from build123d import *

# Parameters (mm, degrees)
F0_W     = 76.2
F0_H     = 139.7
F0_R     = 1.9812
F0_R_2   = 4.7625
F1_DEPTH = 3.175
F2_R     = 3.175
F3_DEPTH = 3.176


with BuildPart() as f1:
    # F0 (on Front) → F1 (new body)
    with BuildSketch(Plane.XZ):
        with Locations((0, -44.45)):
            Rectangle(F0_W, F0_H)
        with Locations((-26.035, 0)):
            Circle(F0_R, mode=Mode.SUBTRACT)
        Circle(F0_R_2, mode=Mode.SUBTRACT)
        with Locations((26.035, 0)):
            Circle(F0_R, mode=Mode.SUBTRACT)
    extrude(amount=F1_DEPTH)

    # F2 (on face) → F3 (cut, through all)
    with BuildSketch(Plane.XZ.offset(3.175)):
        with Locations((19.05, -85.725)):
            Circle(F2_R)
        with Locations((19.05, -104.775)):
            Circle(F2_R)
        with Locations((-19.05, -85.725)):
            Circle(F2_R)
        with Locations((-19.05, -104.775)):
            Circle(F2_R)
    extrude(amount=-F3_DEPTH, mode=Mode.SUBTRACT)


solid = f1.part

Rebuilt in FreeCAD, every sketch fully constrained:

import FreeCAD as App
import Part
import Sketcher
Q = App.Units.Quantity


def add_polygon(sketch, points):
    """Adds a closed chain of lines whose ends are joined by coincident constraints."""
    first, n = sketch.GeometryCount, len(points)
    for a, b in zip(points, points[1:] + points[:1]):
        sketch.addGeometry(Part.LineSegment(App.Vector(*a, 0), App.Vector(*b, 0)), False)
    for i in range(n):
        sketch.addConstraint(Sketcher.Constraint("Coincident", first + i, 2, first + (i + 1) % n, 1))

doc = App.newDocument("Part")
body = doc.addObject("PartDesign::Body", "Body")

sketch1 = doc.addObject("Sketcher::SketchObject", "Sketch")
body.addObject(sketch1)
sketch1.AttachmentSupport = (doc.XZ_Plane, [""])
sketch1.MapMode = "FlatFace"
add_polygon(sketch1, [(-38.1, 25.4), (-38.1, -114.3), (38.1, -114.3), (38.1, 25.4)])
sketch1.addGeometry(Part.Circle(App.Vector(-26, 0, 0), App.Vector(0, 0, 1), 2), False)
sketch1.addGeometry(Part.Circle(App.Vector(0, 0, 0), App.Vector(0, 0, 1), 4.8), False)
sketch1.addGeometry(Part.Circle(App.Vector(26, 0, 0), App.Vector(0, 0, 1), 2), False)
sketch1.addConstraint([
    Sketcher.Constraint("Vertical", 0),
    Sketcher.Constraint("Horizontal", 1),
    Sketcher.Constraint("Vertical", 2),
    Sketcher.Constraint("Horizontal", 3),
    Sketcher.Constraint("Coincident", 5, 3, -1, 1),
    Sketcher.Constraint("Equal", 4, 6),
    Sketcher.Constraint("Symmetric", 4, 3, 6, 3, -1, 1),
    Sketcher.Constraint("PointOnObject", 4, 3, -1),
    Sketcher.Constraint("DistanceX", 1, 1, 1, 2, Q("3 in")),
    Sketcher.Constraint("Diameter", 4, Q("0.156 in")),
    Sketcher.Constraint("Diameter", 5, Q("0.375 in")),
    Sketcher.Constraint("DistanceY", 0, 2, 0, 1, Q("5.5 in")),
    Sketcher.Constraint("DistanceY", -1, 1, 2, 2, Q("1 in")),
    Sketcher.Constraint("DistanceX", 0, 2, -1, 1, Q("1.5 in")),
    Sketcher.Constraint("DistanceX", 4, 3, 6, 3, Q("2.05 in")),
])
pad1 = doc.addObject("PartDesign::Pad", "Pad")
body.addObject(pad1)
pad1.Profile = sketch1
pad1.Length = Q("0.125 in")

sketch2 = doc.addObject("Sketcher::SketchObject", "Sketch001")
body.addObject(sketch2)
sketch2.AttachmentSupport = (doc.XZ_Plane, [""])
sketch2.MapMode = "FlatFace"
sketch2.AttachmentOffset = App.Placement(App.Vector(0, 0, 0.125 * 25.4), App.Rotation())
sketch2.addGeometry([
    Part.Circle(App.Vector(19.1, -85.7, 0), App.Vector(0, 0, 1), 3.2),
    Part.Circle(App.Vector(19.1, -104.8, 0), App.Vector(0, 0, 1), 3.2),
    Part.Circle(App.Vector(-19.1, -85.7, 0), App.Vector(0, 0, 1), 3.2),
    Part.Circle(App.Vector(-19.1, -104.8, 0), App.Vector(0, 0, 1), 3.2),
], False)
sketch2.addConstraint([
    Sketcher.Constraint("Equal", 0, 1),
    Sketcher.Constraint("Equal", 1, 2),
    Sketcher.Constraint("Equal", 2, 3),
    Sketcher.Constraint("Symmetric", 0, 3, 2, 3, -2),
    Sketcher.Constraint("Symmetric", 1, 3, 3, 3, -2),
    Sketcher.Constraint("Vertical", 0, 3, 1, 3),
    Sketcher.Constraint("Diameter", 0, Q("0.25 in")),
    Sketcher.Constraint("DistanceX", 2, 3, 0, 3, Q("1.5 in")),
    Sketcher.Constraint("DistanceY", 1, 3, 0, 3, Q("0.75 in")),
    Sketcher.Constraint("DistanceY", 0, 3, -1, 1, Q("3.375 in")),
])
pocket1 = doc.addObject("PartDesign::Pocket", "Pocket")
body.addObject(pocket1)
pocket1.Profile = sketch2
pocket1.Type = "ThroughAll"

doc.recompute()
